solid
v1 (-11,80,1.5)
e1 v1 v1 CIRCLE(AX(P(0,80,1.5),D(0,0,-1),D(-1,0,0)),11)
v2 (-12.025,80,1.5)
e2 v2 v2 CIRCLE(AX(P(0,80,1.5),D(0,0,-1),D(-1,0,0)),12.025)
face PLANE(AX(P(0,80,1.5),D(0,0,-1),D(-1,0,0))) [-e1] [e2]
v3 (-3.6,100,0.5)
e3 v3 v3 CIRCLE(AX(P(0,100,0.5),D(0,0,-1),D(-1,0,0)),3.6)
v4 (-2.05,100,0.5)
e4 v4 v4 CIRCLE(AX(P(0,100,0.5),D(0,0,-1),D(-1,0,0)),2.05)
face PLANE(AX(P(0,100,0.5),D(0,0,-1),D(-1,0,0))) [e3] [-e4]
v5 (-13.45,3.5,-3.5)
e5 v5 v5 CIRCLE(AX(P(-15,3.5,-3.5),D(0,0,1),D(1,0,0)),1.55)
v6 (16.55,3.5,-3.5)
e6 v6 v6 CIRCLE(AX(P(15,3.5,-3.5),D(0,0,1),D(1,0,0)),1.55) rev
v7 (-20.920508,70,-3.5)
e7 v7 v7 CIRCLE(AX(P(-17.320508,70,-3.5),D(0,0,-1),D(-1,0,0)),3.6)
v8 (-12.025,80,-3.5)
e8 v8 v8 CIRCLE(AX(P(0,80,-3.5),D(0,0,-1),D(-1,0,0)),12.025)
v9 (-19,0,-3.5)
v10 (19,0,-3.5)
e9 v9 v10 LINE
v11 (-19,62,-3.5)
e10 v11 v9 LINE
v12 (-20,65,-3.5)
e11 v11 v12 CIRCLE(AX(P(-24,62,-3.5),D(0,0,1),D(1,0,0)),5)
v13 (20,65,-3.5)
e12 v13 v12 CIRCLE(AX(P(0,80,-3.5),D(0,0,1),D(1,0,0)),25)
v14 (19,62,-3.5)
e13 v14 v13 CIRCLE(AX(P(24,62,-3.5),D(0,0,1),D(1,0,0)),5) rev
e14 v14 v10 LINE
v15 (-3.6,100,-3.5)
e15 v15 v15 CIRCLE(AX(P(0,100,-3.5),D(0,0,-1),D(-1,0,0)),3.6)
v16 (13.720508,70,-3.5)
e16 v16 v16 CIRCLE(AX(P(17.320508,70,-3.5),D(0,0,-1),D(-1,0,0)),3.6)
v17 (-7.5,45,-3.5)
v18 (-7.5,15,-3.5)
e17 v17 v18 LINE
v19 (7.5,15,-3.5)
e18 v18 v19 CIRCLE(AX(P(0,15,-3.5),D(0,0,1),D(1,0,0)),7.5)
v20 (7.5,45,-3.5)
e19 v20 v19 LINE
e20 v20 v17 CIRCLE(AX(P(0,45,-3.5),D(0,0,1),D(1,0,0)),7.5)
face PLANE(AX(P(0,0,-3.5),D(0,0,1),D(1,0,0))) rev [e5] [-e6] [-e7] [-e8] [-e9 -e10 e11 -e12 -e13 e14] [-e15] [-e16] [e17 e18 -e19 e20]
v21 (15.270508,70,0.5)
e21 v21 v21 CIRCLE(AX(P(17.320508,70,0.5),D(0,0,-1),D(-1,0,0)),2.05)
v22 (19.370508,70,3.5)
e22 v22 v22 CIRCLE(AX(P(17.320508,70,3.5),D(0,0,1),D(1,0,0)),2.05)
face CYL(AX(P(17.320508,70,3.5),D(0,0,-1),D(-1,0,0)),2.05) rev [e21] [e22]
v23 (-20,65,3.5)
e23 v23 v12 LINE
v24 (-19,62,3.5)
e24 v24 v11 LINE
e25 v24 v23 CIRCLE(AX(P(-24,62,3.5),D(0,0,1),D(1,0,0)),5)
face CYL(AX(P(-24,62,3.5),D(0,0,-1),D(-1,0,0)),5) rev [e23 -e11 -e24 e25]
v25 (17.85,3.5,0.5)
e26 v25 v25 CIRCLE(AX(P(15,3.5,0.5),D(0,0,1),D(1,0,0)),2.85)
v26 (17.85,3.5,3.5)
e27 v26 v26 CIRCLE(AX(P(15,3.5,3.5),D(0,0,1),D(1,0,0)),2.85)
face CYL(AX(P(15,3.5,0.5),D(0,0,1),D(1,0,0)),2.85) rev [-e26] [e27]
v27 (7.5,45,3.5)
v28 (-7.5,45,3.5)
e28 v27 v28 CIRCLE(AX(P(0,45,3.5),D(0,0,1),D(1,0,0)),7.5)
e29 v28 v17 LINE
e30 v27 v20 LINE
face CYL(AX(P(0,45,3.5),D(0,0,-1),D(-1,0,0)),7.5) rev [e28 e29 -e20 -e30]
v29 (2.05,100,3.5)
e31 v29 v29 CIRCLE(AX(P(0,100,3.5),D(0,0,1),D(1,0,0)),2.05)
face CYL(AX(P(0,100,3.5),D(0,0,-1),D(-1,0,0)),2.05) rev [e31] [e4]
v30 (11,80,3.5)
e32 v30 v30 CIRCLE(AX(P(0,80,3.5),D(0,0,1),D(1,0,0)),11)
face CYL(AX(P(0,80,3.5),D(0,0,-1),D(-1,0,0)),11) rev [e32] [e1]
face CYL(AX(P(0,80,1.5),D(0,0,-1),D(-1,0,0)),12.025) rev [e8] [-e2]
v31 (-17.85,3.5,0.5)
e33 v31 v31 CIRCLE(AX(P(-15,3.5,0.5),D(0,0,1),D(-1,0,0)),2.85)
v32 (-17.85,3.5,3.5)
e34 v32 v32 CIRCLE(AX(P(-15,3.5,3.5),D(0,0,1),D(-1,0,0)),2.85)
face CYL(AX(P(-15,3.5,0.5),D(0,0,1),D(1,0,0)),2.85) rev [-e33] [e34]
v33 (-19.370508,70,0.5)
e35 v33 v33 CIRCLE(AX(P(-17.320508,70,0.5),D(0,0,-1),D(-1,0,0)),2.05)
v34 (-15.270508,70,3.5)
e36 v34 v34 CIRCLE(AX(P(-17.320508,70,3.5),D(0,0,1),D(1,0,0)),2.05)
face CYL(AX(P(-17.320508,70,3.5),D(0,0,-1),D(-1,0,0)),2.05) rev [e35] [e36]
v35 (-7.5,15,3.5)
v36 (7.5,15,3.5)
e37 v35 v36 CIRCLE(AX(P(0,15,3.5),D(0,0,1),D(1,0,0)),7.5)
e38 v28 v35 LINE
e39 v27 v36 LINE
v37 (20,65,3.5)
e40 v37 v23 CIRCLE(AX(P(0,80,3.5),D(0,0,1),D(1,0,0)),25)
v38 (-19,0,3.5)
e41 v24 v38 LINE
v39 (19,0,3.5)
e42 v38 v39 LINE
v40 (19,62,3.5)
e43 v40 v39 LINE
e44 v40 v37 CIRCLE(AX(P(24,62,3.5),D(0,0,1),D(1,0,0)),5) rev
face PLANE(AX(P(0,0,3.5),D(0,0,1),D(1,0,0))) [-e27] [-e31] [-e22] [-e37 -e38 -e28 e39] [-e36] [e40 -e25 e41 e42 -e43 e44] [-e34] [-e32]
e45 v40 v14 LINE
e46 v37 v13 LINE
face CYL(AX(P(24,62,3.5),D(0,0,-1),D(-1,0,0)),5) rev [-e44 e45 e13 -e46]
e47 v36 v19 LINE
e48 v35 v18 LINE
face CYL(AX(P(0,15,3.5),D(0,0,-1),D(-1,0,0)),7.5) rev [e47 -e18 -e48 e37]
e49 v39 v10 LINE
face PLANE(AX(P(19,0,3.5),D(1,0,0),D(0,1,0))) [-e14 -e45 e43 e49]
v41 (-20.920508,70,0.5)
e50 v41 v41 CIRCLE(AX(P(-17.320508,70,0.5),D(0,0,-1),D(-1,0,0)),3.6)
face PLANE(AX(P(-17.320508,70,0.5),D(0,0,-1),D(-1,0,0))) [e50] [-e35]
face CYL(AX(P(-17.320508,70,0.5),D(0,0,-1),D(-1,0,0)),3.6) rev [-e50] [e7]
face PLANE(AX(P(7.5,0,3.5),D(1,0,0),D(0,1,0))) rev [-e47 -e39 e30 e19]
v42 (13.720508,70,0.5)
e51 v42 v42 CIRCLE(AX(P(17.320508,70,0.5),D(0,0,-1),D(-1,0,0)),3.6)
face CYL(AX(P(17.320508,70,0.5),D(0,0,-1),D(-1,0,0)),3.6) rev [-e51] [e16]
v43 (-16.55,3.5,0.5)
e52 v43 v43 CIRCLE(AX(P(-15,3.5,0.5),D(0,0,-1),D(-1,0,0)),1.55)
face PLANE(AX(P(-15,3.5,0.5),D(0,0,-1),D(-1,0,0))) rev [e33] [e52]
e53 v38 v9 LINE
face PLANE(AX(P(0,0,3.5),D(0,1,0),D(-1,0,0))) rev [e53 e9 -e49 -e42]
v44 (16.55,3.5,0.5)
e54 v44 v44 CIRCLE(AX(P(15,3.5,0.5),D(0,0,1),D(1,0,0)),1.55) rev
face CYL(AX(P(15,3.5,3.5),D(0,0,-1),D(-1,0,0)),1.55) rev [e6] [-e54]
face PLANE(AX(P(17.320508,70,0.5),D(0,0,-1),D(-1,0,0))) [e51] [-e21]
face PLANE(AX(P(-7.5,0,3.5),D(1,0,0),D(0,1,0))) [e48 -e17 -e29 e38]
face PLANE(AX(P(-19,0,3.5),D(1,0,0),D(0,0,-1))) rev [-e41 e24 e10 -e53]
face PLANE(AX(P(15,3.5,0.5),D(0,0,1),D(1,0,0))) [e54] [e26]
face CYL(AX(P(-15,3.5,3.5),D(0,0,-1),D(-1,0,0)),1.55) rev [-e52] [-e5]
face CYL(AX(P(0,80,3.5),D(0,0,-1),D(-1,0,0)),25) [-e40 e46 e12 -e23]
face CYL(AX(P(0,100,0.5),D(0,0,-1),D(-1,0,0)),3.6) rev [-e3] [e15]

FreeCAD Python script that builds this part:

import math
import FreeCAD as App
import Part
import Sketcher

V = App.Vector

doc = App.newDocument("Part")
body = doc.addObject("PartDesign::Body", "Body")

# Sketch on XY plane
sketch1 = doc.addObject("Sketcher::SketchObject", "Sketch")
body.addObject(sketch1)
sketch1.AttachmentSupport = (doc.XY_Plane, [""])
sketch1.MapMode = "FlatFace"
sketch1.addGeometry(Part.LineSegment(V(-19, 0, 0), V(19, 0, 0)), False)
sketch1.addGeometry(Part.LineSegment(V(19, 0, 0), V(19, 62, 0)), False)
sketch1.addGeometry(Part.ArcOfCircle(Part.Circle(V(24, 62, 0), V(0, 0, 1), 5), math.radians(143), math.radians(180)), False)
sketch1.addGeometry(Part.ArcOfCircle(Part.Circle(V(0, 80, 0), V(0, 0, 1), 25), math.radians(-37), math.radians(217)), False)
sketch1.addGeometry(Part.ArcOfCircle(Part.Circle(V(-24, 62, 0), V(0, 0, 1), 5), math.radians(0), math.radians(37)), False)
sketch1.addGeometry(Part.LineSegment(V(-19, 62, 0), V(-19, 0, 0)), False)
sketch1.addGeometry(Part.Circle(V(-15, 3.5, 0), V(0, 0, 1), 1.6), False)
sketch1.addGeometry(Part.LineSegment(V(-7.5, 15, 0), V(-7.5, 45, 0)), False)
sketch1.addGeometry(Part.ArcOfCircle(Part.Circle(V(0, 45, 0), V(0, 0, 1), 7.5), math.radians(0), math.radians(180)), False)
sketch1.addGeometry(Part.LineSegment(V(7.5, 45, 0), V(7.5, 15, 0)), False)
sketch1.addGeometry(Part.ArcOfCircle(Part.Circle(V(0, 15, 0), V(0, 0, 1), 7.5), math.radians(180), math.radians(360)), False)
sketch1.addGeometry(Part.Circle(V(15, 3.5, 0), V(0, 0, 1), 1.6), False)
sketch1.addGeometry(Part.Circle(V(-17.3, 70, 0), V(0, 0, 1), 2), False)
sketch1.addGeometry(Part.Circle(V(0, 80, 0), V(0, 0, 1), 11), False)
sketch1.addGeometry(Part.Circle(V(0, 100, 0), V(0, 0, 1), 2), False)
sketch1.addGeometry(Part.Circle(V(17.3, 70, 0), V(0, 0, 1), 2), False)
sketch1.addConstraint(Sketcher.Constraint("Coincident", 0, 2, 1, 1))
sketch1.addConstraint(Sketcher.Constraint("Tangent", 1, 2, 2, 2))
sketch1.addConstraint(Sketcher.Constraint("Tangent", 2, 1, 3, 1))
sketch1.addConstraint(Sketcher.Constraint("Tangent", 3, 2, 4, 2))
sketch1.addConstraint(Sketcher.Constraint("Tangent", 4, 1, 5, 1))
sketch1.addConstraint(Sketcher.Constraint("Coincident", 5, 2, 0, 1))
sketch1.addConstraint(Sketcher.Constraint("Tangent", 7, 2, 8, 2))
sketch1.addConstraint(Sketcher.Constraint("Tangent", 8, 1, 9, 1))
sketch1.addConstraint(Sketcher.Constraint("Tangent", 9, 2, 10, 2))
sketch1.addConstraint(Sketcher.Constraint("Tangent", 10, 1, 7, 1))
sketch1.addConstraint(Sketcher.Constraint("Horizontal", 0))
sketch1.addConstraint(Sketcher.Constraint("Vertical", 1))
sketch1.addConstraint(Sketcher.Constraint("Vertical", 5))
sketch1.addConstraint(Sketcher.Constraint("Vertical", 7))
sketch1.addConstraint(Sketcher.Constraint("Vertical", 9))
sketch1.addConstraint(Sketcher.Constraint("Coincident", 13, 3, 3, 3))
sketch1.addConstraint(Sketcher.Constraint("Equal", 2, 4))
sketch1.addConstraint(Sketcher.Constraint("Equal", 6, 11))
sketch1.addConstraint(Sketcher.Constraint("Equal", 12, 14))
sketch1.addConstraint(Sketcher.Constraint("Equal", 14, 15))
sketch1.addConstraint(Sketcher.Constraint("Symmetric", 0, 2, 5, 2, -1, 1))
sketch1.addConstraint(Sketcher.Constraint("Symmetric", 6, 3, 11, 3, -2))
sketch1.addConstraint(Sketcher.Constraint("Symmetric", 12, 3, 15, 3, -2))
sketch1.addConstraint(Sketcher.Constraint("PointOnObject", 3, 3, -2))
sketch1.addConstraint(Sketcher.Constraint("PointOnObject", 8, 3, -2))
sketch1.addConstraint(Sketcher.Constraint("PointOnObject", 14, 3, -2))
sketch1.addConstraint(Sketcher.Constraint("Diameter", 13, 22.0))
sketch1.addConstraint(Sketcher.Constraint("Radius", 2, 5.0))
sketch1.addConstraint(Sketcher.Constraint("Radius", 3, 25.0))
sketch1.addConstraint(Sketcher.Constraint("Diameter", 6, 3.1))
sketch1.addConstraint(Sketcher.Constraint("Diameter", 12, 4.1))
sketch1.addConstraint(Sketcher.Constraint("Radius", 8, 7.5))
sketch1.addConstraint(Sketcher.Constraint("DistanceX", 0, 1, 0, 2, 38.0))
sketch1.addConstraint(Sketcher.Constraint("DistanceY", 1, 1, 1, 2, 62.0))
sketch1.addConstraint(Sketcher.Constraint("DistanceY", 7, 1, 7, 2, 30.0))
sketch1.addConstraint(Sketcher.Constraint("DistanceX", 6, 3, -1, 1, 15.0))
sketch1.addConstraint(Sketcher.Constraint("DistanceY", -1, 1, 8, 3, 45.0))
sketch1.addConstraint(Sketcher.Constraint("DistanceY", -1, 1, 12, 3, 70.0))
sketch1.addConstraint(Sketcher.Constraint("DistanceY", -1, 1, 14, 3, 100.0))
sketch1.addConstraint(Sketcher.Constraint("DistanceY", -1, 1, 6, 3, 3.5))
sketch1.addConstraint(Sketcher.Constraint("DistanceX", 12, 3, -1, 1, 17.320508))
pad1 = doc.addObject("PartDesign::Pad", "Pad")
body.addObject(pad1)
pad1.Profile = sketch1
pad1.Length = 7
pad1.Midplane = True

# Sketch on XY plane
sketch2 = doc.addObject("Sketcher::SketchObject", "Sketch001")
body.addObject(sketch2)
sketch2.AttachmentSupport = (doc.XY_Plane, [""])
sketch2.MapMode = "FlatFace"
sketch2.AttachmentOffset = App.Placement(V(0, 0, -3.5), App.Rotation())
sketch2.addGeometry(Part.Circle(V(0, 80, 0), V(0, 0, 1), 12), False)
sketch2.addConstraint(Sketcher.Constraint("PointOnObject", 0, 3, -2))
sketch2.addConstraint(Sketcher.Constraint("Diameter", 0, 24.05))
sketch2.addConstraint(Sketcher.Constraint("DistanceY", -1, 1, 0, 3, 80.0))
pocket1 = doc.addObject("PartDesign::Pocket", "Pocket")
body.addObject(pocket1)
pocket1.Profile = sketch2
pocket1.Length = 5
pocket1.Reversed = True

# Sketch on XY plane
sketch3 = doc.addObject("Sketcher::SketchObject", "Sketch002")
body.addObject(sketch3)
sketch3.AttachmentSupport = (doc.XY_Plane, [""])
sketch3.MapMode = "FlatFace"
sketch3.AttachmentOffset = App.Placement(V(0, 0, 3.5), App.Rotation())
sketch3.addGeometry(Part.Circle(V(15, 3.5, 0), V(0, 0, 1), 2.9), False)
sketch3.addGeometry(Part.Circle(V(-15, 3.5, 0), V(0, 0, 1), 2.9), False)
sketch3.addConstraint(Sketcher.Constraint("Equal", 0, 1))
sketch3.addConstraint(Sketcher.Constraint("Symmetric", 0, 3, 1, 3, -2))
sketch3.addConstraint(Sketcher.Constraint("Diameter", 0, 5.7))
sketch3.addConstraint(Sketcher.Constraint("DistanceX", -1, 1, 0, 3, 15.0))
sketch3.addConstraint(Sketcher.Constraint("DistanceY", -1, 1, 0, 3, 3.5))
pocket2 = doc.addObject("PartDesign::Pocket", "Pocket001")
body.addObject(pocket2)
pocket2.Profile = sketch3
pocket2.Length = 3

# Sketch on XY plane
sketch4 = doc.addObject("Sketcher::SketchObject", "Sketch003")
body.addObject(sketch4)
sketch4.AttachmentSupport = (doc.XY_Plane, [""])
sketch4.MapMode = "FlatFace"
sketch4.AttachmentOffset = App.Placement(V(0, 0, -3.5), App.Rotation())
sketch4.addGeometry(Part.Circle(V(0, 100, 0), V(0, 0, 1), 3.6), False)
sketch4.addGeometry(Part.Circle(V(-17.3, 70, 0), V(0, 0, 1), 3.6), False)
sketch4.addGeometry(Part.Circle(V(17.3, 70, 0), V(0, 0, 1), 3.6), False)
sketch4.addConstraint(Sketcher.Constraint("Equal", 0, 1))
sketch4.addConstraint(Sketcher.Constraint("Equal", 1, 2))
sketch4.addConstraint(Sketcher.Constraint("Symmetric", 1, 3, 2, 3, -2))
sketch4.addConstraint(Sketcher.Constraint("PointOnObject", 0, 3, -2))
sketch4.addConstraint(Sketcher.Constraint("Diameter", 0, 7.2))
sketch4.addConstraint(Sketcher.Constraint("DistanceY", -1, 1, 0, 3, 100.0))
sketch4.addConstraint(Sketcher.Constraint("DistanceY", -1, 1, 1, 3, 70.0))
sketch4.addConstraint(Sketcher.Constraint("DistanceX", 1, 3, -1, 1, 17.320508))
pocket3 = doc.addObject("PartDesign::Pocket", "Pocket002")
body.addObject(pocket3)
pocket3.Profile = sketch4
pocket3.Length = 4
pocket3.Reversed = True

doc.recompute()
